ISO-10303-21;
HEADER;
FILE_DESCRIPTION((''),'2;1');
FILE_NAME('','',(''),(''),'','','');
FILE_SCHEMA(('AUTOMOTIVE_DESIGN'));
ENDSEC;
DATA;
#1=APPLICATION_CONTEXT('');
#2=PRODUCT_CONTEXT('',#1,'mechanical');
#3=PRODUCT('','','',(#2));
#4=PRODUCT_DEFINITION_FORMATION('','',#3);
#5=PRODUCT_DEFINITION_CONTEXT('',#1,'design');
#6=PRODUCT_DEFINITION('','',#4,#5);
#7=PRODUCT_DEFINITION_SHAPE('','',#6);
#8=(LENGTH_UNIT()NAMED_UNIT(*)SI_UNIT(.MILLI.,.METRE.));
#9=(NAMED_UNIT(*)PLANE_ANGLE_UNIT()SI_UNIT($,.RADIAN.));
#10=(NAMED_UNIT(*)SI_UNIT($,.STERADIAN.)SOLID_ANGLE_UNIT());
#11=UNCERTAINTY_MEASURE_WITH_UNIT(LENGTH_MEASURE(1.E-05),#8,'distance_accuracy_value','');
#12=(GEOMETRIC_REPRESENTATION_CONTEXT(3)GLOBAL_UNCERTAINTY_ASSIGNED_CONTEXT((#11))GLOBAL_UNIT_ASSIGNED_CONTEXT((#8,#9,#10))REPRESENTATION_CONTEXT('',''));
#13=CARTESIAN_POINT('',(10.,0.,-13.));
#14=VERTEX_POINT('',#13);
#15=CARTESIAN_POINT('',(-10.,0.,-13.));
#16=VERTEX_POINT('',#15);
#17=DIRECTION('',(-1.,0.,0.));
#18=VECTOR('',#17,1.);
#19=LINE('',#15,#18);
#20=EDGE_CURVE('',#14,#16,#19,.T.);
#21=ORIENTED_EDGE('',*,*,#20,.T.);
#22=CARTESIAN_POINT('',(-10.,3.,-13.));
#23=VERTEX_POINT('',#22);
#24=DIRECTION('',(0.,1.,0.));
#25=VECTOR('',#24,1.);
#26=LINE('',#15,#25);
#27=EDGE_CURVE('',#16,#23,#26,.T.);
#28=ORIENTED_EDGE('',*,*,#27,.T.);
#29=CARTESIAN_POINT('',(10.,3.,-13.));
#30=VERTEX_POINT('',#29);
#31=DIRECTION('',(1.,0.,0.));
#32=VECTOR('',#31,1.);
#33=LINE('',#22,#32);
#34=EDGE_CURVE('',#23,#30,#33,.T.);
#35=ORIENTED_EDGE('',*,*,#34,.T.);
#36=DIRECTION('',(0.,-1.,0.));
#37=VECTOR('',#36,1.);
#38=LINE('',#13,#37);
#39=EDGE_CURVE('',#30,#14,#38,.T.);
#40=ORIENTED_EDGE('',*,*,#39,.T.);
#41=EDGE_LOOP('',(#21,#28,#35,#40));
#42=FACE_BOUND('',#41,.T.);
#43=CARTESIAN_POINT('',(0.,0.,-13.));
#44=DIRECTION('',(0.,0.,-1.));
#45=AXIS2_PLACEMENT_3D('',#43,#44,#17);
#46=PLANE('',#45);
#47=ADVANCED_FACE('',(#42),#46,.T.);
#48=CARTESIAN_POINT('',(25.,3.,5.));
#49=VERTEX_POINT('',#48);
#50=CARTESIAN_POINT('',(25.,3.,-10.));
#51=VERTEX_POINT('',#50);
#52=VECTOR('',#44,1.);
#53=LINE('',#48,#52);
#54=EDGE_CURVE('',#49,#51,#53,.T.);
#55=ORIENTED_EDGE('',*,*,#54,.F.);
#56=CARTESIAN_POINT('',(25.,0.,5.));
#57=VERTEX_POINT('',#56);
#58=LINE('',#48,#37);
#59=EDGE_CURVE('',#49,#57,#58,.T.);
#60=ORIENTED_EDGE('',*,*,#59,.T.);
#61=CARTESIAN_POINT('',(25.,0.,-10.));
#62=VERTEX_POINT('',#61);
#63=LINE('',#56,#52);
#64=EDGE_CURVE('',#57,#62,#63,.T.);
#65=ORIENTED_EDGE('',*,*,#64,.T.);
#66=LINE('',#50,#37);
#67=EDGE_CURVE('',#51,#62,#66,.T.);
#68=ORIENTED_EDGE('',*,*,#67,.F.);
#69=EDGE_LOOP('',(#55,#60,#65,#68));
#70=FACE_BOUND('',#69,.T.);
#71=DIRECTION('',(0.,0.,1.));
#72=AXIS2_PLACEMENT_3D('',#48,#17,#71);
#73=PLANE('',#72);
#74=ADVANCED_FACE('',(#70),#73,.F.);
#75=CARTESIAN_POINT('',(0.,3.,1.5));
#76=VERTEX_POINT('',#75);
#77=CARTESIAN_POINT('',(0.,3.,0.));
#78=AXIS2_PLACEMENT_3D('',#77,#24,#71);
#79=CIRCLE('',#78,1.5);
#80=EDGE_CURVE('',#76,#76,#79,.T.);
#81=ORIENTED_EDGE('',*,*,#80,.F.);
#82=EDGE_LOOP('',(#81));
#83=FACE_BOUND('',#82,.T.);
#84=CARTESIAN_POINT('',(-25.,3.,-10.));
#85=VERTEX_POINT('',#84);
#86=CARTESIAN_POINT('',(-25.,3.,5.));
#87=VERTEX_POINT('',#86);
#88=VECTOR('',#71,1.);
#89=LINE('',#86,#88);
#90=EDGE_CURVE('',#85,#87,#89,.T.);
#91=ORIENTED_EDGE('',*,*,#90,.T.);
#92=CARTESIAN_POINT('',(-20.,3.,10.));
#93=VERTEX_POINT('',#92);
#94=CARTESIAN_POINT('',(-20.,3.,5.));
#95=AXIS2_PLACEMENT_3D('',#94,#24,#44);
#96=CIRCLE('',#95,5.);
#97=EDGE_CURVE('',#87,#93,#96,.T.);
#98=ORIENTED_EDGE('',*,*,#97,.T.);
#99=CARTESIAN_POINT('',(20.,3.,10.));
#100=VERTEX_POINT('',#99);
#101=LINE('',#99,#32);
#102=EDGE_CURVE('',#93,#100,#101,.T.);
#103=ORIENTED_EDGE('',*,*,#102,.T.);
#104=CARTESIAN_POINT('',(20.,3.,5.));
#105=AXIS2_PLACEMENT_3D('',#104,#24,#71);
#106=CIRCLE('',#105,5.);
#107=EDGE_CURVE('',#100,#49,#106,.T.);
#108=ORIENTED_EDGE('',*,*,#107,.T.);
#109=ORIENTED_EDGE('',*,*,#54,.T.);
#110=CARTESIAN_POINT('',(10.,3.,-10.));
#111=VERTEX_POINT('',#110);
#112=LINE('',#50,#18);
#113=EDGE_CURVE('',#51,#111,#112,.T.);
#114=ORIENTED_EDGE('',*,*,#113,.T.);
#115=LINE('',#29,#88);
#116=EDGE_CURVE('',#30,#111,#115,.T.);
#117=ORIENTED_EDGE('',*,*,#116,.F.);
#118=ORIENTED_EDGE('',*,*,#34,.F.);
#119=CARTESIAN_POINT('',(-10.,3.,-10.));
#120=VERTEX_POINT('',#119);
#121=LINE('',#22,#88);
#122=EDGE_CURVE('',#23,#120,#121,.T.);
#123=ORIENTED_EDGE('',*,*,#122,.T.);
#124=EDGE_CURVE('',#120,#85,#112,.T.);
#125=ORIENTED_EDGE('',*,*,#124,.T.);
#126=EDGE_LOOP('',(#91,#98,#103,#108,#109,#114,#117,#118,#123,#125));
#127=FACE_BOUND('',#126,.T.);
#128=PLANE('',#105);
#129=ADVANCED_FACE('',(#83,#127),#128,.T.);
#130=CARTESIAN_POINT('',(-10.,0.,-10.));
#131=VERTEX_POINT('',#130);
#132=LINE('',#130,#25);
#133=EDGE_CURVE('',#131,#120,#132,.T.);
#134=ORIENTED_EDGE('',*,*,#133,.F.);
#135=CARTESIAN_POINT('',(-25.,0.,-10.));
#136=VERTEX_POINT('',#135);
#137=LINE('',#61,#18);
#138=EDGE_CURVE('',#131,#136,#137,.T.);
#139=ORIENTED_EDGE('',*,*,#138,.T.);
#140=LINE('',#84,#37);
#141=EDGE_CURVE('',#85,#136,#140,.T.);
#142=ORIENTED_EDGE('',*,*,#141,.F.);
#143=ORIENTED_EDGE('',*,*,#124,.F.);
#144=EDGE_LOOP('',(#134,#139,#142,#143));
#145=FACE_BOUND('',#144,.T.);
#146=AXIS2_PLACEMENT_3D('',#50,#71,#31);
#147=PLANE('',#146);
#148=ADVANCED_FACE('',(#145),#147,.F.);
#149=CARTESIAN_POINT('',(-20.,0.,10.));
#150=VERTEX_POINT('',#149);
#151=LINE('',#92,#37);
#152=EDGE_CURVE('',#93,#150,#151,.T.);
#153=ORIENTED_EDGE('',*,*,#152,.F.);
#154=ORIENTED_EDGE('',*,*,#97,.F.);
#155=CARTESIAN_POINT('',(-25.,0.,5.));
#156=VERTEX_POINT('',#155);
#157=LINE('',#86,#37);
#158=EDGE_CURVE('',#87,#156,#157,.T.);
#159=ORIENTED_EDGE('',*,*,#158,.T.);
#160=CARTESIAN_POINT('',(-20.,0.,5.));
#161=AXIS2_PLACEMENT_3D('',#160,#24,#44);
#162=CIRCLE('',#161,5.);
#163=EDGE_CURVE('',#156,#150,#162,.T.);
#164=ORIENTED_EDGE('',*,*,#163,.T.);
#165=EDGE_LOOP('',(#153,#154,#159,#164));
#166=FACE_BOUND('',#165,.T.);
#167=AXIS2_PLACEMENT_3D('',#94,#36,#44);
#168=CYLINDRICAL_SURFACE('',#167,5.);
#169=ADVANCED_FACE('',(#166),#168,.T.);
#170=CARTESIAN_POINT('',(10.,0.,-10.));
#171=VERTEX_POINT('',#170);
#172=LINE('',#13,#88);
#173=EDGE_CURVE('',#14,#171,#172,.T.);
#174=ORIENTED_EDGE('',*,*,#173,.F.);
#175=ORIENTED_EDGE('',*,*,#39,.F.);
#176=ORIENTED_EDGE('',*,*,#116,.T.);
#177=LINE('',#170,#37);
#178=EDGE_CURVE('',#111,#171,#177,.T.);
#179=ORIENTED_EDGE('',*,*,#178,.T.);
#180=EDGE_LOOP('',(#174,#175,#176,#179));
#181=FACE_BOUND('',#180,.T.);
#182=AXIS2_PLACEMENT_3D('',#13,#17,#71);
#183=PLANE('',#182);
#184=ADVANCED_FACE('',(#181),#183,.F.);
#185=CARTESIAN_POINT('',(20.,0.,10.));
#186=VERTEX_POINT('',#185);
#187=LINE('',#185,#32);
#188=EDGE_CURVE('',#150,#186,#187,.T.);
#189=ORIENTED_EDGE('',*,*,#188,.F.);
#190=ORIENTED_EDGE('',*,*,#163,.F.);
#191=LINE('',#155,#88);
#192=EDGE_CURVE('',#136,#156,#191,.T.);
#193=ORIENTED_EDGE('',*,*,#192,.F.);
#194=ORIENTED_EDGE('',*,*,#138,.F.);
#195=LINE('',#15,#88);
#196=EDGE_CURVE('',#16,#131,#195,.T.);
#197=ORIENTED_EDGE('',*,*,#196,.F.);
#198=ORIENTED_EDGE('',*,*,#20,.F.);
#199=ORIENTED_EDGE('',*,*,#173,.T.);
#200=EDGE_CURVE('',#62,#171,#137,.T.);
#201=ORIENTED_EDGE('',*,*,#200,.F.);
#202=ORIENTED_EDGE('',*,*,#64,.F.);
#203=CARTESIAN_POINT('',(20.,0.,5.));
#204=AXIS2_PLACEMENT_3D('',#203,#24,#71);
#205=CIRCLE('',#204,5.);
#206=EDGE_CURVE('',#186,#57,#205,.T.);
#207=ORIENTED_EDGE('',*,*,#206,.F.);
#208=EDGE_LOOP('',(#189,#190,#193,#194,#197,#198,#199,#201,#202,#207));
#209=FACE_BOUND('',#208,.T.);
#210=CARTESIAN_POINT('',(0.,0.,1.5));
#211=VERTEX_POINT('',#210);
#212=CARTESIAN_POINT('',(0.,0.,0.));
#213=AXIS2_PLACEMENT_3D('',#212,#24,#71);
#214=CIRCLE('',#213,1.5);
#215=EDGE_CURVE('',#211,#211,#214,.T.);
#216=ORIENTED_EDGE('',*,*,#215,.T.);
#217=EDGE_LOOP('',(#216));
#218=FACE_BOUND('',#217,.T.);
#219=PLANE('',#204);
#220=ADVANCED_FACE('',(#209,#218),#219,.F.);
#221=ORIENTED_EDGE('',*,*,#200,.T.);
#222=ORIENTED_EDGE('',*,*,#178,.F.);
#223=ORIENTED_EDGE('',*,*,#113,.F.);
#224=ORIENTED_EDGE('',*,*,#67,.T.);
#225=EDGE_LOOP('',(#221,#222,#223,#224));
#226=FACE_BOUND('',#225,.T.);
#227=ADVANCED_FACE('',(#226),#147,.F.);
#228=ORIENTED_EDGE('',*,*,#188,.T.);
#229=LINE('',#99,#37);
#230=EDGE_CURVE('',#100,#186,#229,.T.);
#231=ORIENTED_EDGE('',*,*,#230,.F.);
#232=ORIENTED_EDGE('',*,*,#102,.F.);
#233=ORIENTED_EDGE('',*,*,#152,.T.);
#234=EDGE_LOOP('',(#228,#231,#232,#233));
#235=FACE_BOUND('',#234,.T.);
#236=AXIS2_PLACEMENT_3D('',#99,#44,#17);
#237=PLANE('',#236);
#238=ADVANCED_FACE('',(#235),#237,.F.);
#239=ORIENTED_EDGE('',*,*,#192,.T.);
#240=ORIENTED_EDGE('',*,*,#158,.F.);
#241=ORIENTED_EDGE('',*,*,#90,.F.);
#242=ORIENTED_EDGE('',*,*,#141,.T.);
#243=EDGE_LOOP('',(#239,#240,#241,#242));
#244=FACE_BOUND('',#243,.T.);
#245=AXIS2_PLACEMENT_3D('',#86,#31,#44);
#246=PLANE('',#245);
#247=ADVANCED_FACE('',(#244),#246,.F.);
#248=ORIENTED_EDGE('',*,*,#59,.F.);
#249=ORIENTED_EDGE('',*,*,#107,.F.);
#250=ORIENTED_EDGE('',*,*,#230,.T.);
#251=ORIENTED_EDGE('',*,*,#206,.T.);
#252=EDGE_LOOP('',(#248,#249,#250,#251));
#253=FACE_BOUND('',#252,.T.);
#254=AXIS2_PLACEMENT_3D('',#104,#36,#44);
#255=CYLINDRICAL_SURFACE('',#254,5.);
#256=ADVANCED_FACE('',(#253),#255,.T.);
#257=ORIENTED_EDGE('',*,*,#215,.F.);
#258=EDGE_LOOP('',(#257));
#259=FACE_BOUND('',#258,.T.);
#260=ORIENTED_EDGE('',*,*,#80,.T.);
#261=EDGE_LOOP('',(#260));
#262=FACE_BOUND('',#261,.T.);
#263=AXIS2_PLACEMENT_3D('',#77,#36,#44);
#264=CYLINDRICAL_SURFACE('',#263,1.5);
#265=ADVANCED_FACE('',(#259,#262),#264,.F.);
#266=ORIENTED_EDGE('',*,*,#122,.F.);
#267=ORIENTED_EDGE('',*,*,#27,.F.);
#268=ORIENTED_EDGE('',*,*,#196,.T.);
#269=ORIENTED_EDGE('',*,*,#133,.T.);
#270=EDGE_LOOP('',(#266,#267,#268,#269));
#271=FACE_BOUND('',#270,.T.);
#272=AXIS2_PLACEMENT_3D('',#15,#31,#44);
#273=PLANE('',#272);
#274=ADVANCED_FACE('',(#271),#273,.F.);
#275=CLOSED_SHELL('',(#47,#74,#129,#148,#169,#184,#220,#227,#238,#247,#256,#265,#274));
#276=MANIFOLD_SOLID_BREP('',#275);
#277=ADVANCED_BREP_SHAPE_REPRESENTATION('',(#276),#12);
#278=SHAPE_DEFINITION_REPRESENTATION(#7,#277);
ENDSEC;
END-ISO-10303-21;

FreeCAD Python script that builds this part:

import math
import FreeCAD as App
import Part
import Sketcher
from FreeCAD import Vector

doc = App.newDocument("Part")
body = doc.addObject("PartDesign::Body", "Body")

# Sketch on XZ plane
sketch1 = body.newObject("Sketcher::SketchObject", "Sketch")
sketch1.AttachmentSupport = (doc.getObject("XZ_Plane"), [""])
sketch1.MapMode = "FlatFace"
sketch1.addGeometry([
    Part.LineSegment(Vector(-20, 10, 0), Vector(20, 10, 0)),  # 0
    Part.ArcOfCircle(Part.Circle(Vector(20, 5, 0), Vector(0, 0, 1), 5), math.radians(0), math.radians(90)),  # 1
    Part.LineSegment(Vector(25, 5, 0), Vector(25, -10, 0)),  # 2
    Part.LineSegment(Vector(25, -10, 0), Vector(-25, -10, 0)),  # 3
    Part.LineSegment(Vector(-25, -10, 0), Vector(-25, 5, 0)),  # 4
    Part.ArcOfCircle(Part.Circle(Vector(-20, 5, 0), Vector(0, 0, 1), 5), math.radians(90), math.radians(180)),  # 5
    Part.Circle(Vector(0, 0, 0), Vector(0, 0, 1), 1.5),  # 6
], False)
sketch1.addConstraint([
    Sketcher.Constraint("Tangent", 0, 2, 1, 2),
    Sketcher.Constraint("Tangent", 1, 1, 2, 1),
    Sketcher.Constraint("Coincident", 2, 2, 3, 1),
    Sketcher.Constraint("Coincident", 3, 2, 4, 1),
    Sketcher.Constraint("Tangent", 4, 2, 5, 2),
    Sketcher.Constraint("Tangent", 5, 1, 0, 1),
    Sketcher.Constraint("Horizontal", 0),
    Sketcher.Constraint("Vertical", 2),
    Sketcher.Constraint("Horizontal", 3),
    Sketcher.Constraint("Vertical", 4),
    Sketcher.Constraint("Coincident", 6, 3, -1, 1),
    Sketcher.Constraint("Equal", 1, 5),
    Sketcher.Constraint("Diameter", 6, 3.0),
    Sketcher.Constraint("Radius", 1, 5.0),
    Sketcher.Constraint("DistanceX", 0, 1, 0, 2, 40.0),
    Sketcher.Constraint("DistanceY", 2, 2, 2, 1, 15.0),
    Sketcher.Constraint("DistanceX", -1, 1, 1, 3, 20.0),
    Sketcher.Constraint("DistanceY", -1, 1, 1, 3, 5.0),
])
pad1 = body.newObject("PartDesign::Pad", "Pad")
pad1.Profile = sketch1
pad1.Length = 3
pad1.Reversed = True

# Sketch on XY plane
sketch2 = body.newObject("Sketcher::SketchObject", "Sketch001")
sketch2.AttachmentSupport = (doc.getObject("XY_Plane"), [""])
sketch2.MapMode = "FlatFace"
sketch2.AttachmentOffset = App.Placement(Vector(0, 0, -10), App.Rotation())
sketch2.addGeometry([
    Part.LineSegment(Vector(10, 3, 0), Vector(10, 0, 0)),
    Part.LineSegment(Vector(10, 0, 0), Vector(-10, 0, 0)),
    Part.LineSegment(Vector(-10, 0, 0), Vector(-10, 3, 0)),
    Part.LineSegment(Vector(-10, 3, 0), Vector(10, 3, 0)),
], False)
sketch2.addConstraint([
    Sketcher.Constraint("Coincident", 0, 2, 1, 1),
    Sketcher.Constraint("Coincident", 1, 2, 2, 1),
    Sketcher.Constraint("Coincident", 2, 2, 3, 1),
    Sketcher.Constraint("Coincident", 3, 2, 0, 1),
    Sketcher.Constraint("Vertical", 0),
    Sketcher.Constraint("Horizontal", 1),
    Sketcher.Constraint("Vertical", 2),
    Sketcher.Constraint("Horizontal", 3),
    Sketcher.Constraint("Symmetric", 0, 2, 1, 2, -1, 1),
    Sketcher.Constraint("DistanceX", 1, 2, 1, 1, 20.0),
    Sketcher.Constraint("DistanceY", 0, 2, 0, 1, 3.0),
])
pad2 = body.newObject("PartDesign::Pad", "Pad001")
pad2.Profile = sketch2
pad2.Length = 3
pad2.Reversed = True

doc.recompute()
